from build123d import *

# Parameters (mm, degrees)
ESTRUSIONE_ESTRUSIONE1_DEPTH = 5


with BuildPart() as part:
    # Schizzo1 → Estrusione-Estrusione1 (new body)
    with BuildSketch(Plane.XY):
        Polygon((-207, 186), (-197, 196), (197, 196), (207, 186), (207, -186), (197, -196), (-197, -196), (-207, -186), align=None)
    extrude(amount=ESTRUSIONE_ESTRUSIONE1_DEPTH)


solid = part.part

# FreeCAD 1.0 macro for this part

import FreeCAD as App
import Part
import Sketcher

V = App.Vector

doc = App.newDocument("Part")
body = doc.addObject("PartDesign::Body", "Body")

# Sketch on XY plane
sketch1 = body.newObject("Sketcher::SketchObject", "Sketch")
sketch1.AttachmentSupport = (doc.getObject("XY_Plane"), [""])
sketch1.MapMode = "FlatFace"
sketch1.addGeometry(Part.LineSegment(V(-197, 196, 0), V(-207, 186, 0)), False)
sketch1.addGeometry(Part.LineSegment(V(-207, 186, 0), V(-207, -186, 0)), False)
sketch1.addGeometry(Part.LineSegment(V(-207, -186, 0), V(-197, -196, 0)), False)
sketch1.addGeometry(Part.LineSegment(V(-197, -196, 0), V(197, -196, 0)), False)
sketch1.addGeometry(Part.LineSegment(V(197, -196, 0), V(207, -186, 0)), False)
sketch1.addGeometry(Part.LineSegment(V(207, -186, 0), V(207, 186, 0)), False)
sketch1.addGeometry(Part.LineSegment(V(207, 186, 0), V(197, 196, 0)), False)
sketch1.addGeometry(Part.LineSegment(V(197, 196, 0), V(-197, 196, 0)), False)
sketch1.addConstraint(Sketcher.Constraint("Coincident", 0, 2, 1, 1))
sketch1.addConstraint(Sketcher.Constraint("Coincident", 1, 2, 2, 1))
sketch1.addConstraint(Sketcher.Constraint("Coincident", 2, 2, 3, 1))
sketch1.addConstraint(Sketcher.Constraint("Coincident", 3, 2, 4, 1))
sketch1.addConstraint(Sketcher.Constraint("Coincident", 4, 2, 5, 1))
sketch1.addConstraint(Sketcher.Constraint("Coincident", 5, 2, 6, 1))
sketch1.addConstraint(Sketcher.Constraint("Coincident", 6, 2, 7, 1))
sketch1.addConstraint(Sketcher.Constraint("Coincident", 7, 2, 0, 1))
sketch1.addConstraint(Sketcher.Constraint("Vertical", 1))
sketch1.addConstraint(Sketcher.Constraint("Horizontal", 3))
sketch1.addConstraint(Sketcher.Constraint("Vertical", 5))
sketch1.addConstraint(Sketcher.Constraint("Horizontal", 7))
sketch1.addConstraint(Sketcher.Constraint("Symmetric", 0, 2, 4, 2, -1, 1))
sketch1.addConstraint(Sketcher.Constraint("Symmetric", 2, 2, 6, 2, -1, 1))
sketch1.addConstraint(Sketcher.Constraint("Perpendicular", 0, 2))
sketch1.addConstraint(Sketcher.Constraint("Perpendicular", 2, 4))
sketch1.addConstraint(Sketcher.Constraint("Perpendicular", 4, 6))
sketch1.addConstraint(Sketcher.Constraint("Horizontal", 1, 2, 4, 2))
sketch1.addConstraint(Sketcher.Constraint("Vertical", 3, 2, 6, 2))
sketch1.addConstraint(Sketcher.Constraint("DistanceX", 3, 1, 3, 2, 394.0))
sketch1.addConstraint(Sketcher.Constraint("DistanceY", 1, 2, 1, 1, 372.0))
sketch1.addConstraint(Sketcher.Constraint("DistanceX", 0, 2, -1, 1, 207.0))
pad1 = body.newObject("PartDesign::Pad", "Pad")
pad1.Profile = sketch1
pad1.Length = 5

doc.recompute()
